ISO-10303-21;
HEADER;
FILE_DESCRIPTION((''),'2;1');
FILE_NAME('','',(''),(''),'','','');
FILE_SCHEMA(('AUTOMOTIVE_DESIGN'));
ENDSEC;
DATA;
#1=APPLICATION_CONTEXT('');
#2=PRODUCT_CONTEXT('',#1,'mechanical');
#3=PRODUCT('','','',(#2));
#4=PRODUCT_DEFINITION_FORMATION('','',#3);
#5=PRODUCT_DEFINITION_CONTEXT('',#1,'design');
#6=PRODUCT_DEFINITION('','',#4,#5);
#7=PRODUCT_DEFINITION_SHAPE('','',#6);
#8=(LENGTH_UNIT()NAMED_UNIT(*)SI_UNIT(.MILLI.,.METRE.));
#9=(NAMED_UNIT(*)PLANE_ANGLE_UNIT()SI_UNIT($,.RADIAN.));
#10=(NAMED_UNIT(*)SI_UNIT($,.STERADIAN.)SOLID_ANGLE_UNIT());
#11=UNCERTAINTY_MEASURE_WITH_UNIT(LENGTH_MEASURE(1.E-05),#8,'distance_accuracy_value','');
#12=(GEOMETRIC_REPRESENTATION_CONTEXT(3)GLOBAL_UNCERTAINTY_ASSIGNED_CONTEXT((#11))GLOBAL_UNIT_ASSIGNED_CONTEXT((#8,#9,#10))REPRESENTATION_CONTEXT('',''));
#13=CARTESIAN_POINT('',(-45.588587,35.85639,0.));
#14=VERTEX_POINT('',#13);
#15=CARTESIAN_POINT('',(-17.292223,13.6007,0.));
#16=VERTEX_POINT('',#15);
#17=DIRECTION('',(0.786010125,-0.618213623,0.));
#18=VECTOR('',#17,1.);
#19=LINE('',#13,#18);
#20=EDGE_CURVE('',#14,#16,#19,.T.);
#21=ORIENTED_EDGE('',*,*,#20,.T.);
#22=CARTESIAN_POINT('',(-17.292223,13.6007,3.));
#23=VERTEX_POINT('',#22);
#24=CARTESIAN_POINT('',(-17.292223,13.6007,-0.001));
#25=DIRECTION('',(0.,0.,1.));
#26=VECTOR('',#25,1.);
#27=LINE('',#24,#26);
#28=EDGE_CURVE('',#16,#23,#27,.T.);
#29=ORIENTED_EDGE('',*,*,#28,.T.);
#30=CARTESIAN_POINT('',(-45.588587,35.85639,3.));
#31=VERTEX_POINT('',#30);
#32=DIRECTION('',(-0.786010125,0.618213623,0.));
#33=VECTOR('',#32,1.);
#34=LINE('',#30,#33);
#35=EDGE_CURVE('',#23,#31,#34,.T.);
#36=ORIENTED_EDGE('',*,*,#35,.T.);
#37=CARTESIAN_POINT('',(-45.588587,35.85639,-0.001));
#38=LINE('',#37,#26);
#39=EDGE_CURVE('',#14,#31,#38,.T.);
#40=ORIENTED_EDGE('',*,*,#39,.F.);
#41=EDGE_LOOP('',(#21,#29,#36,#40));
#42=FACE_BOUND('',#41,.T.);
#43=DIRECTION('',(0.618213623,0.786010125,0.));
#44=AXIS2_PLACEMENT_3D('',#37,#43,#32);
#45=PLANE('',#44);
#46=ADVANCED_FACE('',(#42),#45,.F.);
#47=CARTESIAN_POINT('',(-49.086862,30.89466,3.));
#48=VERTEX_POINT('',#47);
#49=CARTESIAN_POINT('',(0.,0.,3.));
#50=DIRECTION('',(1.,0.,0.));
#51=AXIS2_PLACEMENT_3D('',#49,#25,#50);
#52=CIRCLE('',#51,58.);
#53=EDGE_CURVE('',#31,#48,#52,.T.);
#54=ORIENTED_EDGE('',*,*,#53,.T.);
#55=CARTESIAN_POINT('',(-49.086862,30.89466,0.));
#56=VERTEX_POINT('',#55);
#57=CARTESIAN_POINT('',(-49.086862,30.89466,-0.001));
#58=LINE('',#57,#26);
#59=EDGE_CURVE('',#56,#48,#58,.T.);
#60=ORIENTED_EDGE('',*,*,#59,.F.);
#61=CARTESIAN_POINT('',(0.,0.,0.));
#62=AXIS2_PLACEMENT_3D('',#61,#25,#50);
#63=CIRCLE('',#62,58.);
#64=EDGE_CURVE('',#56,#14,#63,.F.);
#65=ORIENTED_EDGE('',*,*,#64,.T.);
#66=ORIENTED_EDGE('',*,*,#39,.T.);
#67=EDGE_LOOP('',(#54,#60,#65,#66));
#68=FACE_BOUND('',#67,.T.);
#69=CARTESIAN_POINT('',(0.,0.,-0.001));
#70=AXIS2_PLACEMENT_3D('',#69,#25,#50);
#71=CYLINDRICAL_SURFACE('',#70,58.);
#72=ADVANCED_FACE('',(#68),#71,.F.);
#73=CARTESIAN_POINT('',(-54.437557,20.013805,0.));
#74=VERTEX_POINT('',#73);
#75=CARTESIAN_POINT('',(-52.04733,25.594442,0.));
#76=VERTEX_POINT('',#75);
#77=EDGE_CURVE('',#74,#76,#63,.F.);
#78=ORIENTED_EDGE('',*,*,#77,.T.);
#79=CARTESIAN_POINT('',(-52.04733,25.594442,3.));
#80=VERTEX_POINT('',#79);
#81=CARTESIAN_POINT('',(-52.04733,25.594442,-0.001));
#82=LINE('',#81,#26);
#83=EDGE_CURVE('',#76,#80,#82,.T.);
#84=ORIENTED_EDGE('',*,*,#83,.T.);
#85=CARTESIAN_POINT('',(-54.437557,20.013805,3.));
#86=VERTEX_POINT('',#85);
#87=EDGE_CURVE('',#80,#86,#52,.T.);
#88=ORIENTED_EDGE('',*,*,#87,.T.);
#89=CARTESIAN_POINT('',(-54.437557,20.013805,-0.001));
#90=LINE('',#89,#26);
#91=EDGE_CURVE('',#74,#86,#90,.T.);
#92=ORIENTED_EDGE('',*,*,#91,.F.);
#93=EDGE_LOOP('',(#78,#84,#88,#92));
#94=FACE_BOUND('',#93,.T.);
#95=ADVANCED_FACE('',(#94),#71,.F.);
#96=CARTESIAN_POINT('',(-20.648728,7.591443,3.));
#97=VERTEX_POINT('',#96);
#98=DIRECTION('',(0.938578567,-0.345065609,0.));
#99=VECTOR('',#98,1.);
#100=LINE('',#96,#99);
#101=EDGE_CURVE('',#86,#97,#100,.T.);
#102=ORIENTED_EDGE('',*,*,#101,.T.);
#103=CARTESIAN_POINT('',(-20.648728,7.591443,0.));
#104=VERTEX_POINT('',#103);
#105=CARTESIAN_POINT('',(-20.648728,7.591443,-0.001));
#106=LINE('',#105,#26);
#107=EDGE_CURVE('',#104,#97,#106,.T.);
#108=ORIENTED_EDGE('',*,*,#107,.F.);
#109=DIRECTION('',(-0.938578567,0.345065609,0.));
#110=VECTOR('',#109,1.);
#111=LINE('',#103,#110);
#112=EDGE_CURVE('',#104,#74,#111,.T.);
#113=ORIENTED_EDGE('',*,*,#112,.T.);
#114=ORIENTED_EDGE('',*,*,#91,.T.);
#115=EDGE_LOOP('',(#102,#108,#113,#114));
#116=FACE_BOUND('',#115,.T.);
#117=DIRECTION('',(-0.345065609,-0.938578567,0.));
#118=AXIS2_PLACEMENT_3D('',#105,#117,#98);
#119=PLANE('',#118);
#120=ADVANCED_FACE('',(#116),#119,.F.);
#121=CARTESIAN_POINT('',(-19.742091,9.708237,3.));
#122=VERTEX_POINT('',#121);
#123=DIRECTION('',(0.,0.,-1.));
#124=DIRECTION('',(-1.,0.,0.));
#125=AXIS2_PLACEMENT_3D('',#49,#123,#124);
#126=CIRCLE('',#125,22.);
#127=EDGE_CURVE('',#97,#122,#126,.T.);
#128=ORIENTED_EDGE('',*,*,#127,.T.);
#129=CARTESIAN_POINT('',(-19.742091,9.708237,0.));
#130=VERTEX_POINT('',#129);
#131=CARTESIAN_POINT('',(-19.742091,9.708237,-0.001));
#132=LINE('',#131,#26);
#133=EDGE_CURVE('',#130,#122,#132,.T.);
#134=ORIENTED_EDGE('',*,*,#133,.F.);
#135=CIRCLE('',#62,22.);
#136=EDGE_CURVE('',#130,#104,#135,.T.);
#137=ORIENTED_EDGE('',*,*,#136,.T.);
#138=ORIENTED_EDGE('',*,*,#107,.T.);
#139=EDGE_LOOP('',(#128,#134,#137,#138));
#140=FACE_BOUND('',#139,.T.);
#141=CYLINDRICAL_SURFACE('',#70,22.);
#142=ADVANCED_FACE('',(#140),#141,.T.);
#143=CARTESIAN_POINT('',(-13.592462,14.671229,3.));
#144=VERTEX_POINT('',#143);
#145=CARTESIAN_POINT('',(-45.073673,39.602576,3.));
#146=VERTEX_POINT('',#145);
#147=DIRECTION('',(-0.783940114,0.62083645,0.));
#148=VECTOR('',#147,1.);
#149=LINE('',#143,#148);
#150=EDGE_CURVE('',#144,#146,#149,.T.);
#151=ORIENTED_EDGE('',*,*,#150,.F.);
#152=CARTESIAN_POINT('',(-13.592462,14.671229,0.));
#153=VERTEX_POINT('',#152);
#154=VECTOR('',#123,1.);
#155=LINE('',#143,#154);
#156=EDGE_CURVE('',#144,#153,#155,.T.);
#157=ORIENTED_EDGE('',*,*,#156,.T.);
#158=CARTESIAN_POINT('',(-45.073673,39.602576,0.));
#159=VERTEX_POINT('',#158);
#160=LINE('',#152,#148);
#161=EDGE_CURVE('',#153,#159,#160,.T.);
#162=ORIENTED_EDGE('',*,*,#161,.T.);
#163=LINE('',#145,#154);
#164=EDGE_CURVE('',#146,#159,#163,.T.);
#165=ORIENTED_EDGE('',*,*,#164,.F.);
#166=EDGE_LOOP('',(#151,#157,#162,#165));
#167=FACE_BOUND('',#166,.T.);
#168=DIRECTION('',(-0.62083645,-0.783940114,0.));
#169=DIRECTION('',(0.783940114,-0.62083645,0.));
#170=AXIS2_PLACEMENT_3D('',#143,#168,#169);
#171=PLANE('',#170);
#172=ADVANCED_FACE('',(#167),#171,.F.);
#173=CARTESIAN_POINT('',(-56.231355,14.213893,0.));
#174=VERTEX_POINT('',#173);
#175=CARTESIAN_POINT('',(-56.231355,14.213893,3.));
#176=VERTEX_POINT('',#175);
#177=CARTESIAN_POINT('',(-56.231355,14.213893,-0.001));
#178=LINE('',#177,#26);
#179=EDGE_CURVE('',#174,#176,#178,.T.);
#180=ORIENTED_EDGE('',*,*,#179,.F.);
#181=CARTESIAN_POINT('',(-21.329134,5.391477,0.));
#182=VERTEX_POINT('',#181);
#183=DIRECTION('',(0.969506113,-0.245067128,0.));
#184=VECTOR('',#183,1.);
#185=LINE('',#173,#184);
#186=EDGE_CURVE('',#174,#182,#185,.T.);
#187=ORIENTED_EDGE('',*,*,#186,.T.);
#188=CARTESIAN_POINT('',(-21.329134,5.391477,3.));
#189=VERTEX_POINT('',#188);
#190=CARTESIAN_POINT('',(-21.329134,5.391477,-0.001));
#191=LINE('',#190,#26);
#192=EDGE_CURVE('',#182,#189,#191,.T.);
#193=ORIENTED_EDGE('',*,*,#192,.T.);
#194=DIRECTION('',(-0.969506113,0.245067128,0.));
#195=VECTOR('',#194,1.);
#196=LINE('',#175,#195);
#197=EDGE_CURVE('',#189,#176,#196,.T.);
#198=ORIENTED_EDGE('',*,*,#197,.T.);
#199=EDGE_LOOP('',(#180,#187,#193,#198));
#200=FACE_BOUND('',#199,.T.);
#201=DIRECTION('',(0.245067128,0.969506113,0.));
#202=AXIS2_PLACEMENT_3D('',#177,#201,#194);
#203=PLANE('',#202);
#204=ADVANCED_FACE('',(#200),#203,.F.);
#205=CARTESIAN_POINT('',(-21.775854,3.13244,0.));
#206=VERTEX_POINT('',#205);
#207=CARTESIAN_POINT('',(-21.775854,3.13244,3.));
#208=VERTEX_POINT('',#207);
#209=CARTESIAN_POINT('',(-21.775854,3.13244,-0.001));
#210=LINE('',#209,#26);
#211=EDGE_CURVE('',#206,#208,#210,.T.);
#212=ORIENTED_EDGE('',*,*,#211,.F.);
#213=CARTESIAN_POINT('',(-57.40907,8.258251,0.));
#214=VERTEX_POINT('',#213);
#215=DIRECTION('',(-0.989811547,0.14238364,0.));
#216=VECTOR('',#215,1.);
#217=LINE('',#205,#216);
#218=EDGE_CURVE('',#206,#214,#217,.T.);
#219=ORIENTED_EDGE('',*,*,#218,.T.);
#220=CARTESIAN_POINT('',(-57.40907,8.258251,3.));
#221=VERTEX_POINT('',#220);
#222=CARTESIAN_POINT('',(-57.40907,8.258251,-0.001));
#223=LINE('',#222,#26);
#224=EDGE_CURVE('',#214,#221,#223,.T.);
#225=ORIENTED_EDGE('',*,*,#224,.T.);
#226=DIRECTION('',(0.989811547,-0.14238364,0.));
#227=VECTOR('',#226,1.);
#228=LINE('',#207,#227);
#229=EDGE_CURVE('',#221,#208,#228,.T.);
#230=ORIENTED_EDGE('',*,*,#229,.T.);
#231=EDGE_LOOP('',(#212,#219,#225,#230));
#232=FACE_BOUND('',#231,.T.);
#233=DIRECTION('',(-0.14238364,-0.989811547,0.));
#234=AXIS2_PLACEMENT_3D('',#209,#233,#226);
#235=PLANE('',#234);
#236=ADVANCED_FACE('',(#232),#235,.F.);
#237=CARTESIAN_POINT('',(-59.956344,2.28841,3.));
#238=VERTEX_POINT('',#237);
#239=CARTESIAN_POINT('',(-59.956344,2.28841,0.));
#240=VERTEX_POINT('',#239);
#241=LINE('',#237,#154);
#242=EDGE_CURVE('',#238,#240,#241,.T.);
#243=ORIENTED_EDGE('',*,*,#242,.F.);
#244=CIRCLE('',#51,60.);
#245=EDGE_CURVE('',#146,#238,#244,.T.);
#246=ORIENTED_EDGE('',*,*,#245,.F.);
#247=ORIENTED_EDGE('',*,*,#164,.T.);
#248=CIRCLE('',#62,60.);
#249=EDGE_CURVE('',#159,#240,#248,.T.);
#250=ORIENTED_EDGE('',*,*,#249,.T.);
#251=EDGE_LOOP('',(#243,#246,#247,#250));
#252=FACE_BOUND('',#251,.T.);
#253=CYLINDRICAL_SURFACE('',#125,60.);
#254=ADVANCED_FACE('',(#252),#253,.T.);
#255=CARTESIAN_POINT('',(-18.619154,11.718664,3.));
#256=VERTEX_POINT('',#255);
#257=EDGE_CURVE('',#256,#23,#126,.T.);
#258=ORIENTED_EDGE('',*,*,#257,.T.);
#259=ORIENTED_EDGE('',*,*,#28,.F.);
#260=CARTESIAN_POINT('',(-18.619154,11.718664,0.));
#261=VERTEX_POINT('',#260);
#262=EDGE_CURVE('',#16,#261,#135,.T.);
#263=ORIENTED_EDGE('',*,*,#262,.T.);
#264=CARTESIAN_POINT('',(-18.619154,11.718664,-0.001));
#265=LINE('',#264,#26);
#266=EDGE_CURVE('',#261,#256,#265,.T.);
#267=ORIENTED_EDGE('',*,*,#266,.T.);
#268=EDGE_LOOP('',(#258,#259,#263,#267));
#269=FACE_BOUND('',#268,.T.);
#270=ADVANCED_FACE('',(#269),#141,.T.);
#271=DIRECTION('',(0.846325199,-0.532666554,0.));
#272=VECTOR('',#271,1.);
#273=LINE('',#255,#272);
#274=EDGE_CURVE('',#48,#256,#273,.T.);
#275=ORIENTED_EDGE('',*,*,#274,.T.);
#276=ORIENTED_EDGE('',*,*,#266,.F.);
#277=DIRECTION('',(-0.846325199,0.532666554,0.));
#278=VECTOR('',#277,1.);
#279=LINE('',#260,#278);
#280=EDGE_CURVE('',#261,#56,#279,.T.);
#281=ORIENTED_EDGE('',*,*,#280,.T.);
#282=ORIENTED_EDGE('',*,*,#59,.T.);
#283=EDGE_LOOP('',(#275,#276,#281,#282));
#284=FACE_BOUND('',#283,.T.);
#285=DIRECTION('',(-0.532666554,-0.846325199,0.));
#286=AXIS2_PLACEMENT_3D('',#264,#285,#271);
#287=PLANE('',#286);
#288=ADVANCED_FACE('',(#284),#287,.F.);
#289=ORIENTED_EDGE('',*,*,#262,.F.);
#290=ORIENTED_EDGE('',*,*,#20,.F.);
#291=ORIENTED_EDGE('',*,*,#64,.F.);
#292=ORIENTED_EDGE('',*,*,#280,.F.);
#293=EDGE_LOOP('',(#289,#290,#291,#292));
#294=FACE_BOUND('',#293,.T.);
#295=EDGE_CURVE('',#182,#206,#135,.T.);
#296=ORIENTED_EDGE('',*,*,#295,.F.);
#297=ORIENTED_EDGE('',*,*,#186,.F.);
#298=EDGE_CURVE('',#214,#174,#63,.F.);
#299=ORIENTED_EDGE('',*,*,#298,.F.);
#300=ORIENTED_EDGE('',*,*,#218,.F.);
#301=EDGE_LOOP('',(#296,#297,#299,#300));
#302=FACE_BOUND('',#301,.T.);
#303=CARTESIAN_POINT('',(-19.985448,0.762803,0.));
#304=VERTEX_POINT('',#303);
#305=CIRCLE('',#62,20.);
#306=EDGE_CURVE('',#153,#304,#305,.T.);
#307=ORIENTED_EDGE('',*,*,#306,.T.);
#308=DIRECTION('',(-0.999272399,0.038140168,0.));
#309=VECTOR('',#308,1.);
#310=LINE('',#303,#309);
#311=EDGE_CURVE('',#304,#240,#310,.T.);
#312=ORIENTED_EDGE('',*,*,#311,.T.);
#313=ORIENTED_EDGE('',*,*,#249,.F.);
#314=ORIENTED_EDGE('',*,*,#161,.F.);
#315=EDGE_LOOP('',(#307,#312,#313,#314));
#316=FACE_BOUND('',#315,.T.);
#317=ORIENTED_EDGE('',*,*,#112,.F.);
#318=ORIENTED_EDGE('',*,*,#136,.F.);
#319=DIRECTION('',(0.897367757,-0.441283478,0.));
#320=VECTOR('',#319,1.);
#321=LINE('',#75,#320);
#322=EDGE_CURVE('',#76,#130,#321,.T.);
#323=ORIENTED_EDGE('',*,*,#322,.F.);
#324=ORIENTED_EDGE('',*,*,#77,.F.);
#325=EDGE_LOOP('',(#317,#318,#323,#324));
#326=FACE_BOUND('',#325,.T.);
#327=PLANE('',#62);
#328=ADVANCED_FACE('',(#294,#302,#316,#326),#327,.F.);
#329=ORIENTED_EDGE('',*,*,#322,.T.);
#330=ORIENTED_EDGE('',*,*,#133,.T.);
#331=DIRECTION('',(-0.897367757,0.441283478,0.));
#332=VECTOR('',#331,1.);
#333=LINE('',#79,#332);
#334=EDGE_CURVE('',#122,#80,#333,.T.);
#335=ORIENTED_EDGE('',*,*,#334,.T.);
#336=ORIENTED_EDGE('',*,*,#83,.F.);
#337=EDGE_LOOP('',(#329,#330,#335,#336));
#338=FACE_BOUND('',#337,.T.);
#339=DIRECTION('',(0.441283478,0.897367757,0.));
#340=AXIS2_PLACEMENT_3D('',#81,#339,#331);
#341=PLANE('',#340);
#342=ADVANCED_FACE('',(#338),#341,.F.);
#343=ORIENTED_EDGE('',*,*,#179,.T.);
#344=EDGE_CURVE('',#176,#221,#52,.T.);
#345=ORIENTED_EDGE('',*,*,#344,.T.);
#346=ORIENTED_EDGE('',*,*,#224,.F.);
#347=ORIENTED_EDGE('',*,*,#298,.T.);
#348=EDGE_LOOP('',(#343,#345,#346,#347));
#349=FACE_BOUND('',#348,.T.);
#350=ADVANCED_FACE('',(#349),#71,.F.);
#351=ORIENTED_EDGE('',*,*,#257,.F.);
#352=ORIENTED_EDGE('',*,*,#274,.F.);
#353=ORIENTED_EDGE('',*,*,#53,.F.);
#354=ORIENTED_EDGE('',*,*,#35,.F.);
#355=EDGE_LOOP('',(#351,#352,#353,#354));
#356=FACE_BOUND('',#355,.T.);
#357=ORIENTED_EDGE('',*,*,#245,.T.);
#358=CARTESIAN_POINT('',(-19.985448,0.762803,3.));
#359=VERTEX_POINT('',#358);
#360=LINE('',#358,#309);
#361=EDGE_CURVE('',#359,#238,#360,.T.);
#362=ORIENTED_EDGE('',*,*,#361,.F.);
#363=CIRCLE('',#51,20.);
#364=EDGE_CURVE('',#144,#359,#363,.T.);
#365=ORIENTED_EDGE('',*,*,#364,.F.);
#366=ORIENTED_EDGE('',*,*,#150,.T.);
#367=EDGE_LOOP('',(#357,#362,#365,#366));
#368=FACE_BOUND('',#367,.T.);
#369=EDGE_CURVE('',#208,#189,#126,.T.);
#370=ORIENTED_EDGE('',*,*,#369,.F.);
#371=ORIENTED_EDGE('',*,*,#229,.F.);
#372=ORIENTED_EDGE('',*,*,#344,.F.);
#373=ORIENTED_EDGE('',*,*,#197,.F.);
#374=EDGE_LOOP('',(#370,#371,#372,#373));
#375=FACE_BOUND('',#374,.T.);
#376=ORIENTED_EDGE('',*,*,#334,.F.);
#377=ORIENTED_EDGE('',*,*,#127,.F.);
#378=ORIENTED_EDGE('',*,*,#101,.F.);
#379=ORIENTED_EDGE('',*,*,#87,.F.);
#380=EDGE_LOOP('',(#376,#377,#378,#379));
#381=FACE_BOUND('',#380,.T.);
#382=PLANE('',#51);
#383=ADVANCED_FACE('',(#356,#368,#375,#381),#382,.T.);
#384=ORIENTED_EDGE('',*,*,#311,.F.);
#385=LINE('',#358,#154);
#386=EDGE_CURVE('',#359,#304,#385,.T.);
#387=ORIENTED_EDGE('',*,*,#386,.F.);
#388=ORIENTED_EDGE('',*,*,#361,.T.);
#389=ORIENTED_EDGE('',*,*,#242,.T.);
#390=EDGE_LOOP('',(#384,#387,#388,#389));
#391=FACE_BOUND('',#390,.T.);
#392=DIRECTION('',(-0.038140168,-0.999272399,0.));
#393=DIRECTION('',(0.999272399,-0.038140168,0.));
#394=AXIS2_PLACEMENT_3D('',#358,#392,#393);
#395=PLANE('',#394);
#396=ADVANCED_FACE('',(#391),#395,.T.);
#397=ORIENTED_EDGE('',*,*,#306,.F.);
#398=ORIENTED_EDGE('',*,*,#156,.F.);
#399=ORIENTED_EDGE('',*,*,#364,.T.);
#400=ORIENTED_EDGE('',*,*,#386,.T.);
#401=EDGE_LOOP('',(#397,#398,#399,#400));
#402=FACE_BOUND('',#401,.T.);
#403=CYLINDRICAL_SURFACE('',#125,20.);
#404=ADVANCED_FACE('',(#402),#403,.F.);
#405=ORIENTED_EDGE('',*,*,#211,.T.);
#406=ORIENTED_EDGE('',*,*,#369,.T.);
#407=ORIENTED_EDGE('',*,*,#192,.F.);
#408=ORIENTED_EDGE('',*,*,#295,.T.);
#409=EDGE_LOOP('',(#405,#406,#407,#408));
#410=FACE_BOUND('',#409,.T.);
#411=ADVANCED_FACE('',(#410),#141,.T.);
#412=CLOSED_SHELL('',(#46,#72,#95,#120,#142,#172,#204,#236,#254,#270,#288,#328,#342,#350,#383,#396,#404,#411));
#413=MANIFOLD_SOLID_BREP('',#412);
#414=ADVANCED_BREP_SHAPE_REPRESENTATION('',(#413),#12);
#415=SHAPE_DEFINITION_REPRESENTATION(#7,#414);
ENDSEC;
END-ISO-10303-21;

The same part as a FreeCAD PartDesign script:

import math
import FreeCAD as App
import Part
import Sketcher

V = App.Vector
Q = App.Units.Quantity

doc = App.newDocument("Part")
body = doc.addObject("PartDesign::Body", "Body")

# Sketch on XY plane
sketch1 = body.newObject("Sketcher::SketchObject", "Sketch")
sketch1.AttachmentSupport = (doc.getObject("XY_Plane"), [""])
sketch1.MapMode = "FlatFace"
sketch1.addGeometry([
    Part.LineSegment(V(-60, 2, 0), V(-20, 1, 0)),
    Part.ArcOfCircle(Part.Circle(V(0, 0, 0), V(0, 0, 1), 20), math.radians(133), math.radians(178)),
    Part.LineSegment(V(-14, 15, 0), V(-45, 40, 0)),
    Part.ArcOfCircle(Part.Circle(V(0, 0, 0), V(0, 0, 1), 60), math.radians(139), math.radians(178)),
], False)
sketch1.addConstraint([
    Sketcher.Constraint("Coincident", 0, 2, 1, 2),
    Sketcher.Constraint("Coincident", 1, 1, 2, 1),
    Sketcher.Constraint("Coincident", 2, 2, 3, 1),
    Sketcher.Constraint("Coincident", 3, 2, 0, 1),
    Sketcher.Constraint("Coincident", 1, 3, -1, 1),
    Sketcher.Constraint("Coincident", 3, 3, -1, 1),
    Sketcher.Constraint("Radius", 1, Q("20 mm")),
    Sketcher.Constraint("Radius", 3, Q("60 mm")),
    Sketcher.Constraint("DistanceY", -1, 1, 1, 1, Q("14.671229 mm")),
    Sketcher.Constraint("DistanceY", -1, 1, 3, 2, Q("2.28841 mm")),
    Sketcher.Constraint("DistanceX", 2, 2, 1, 1, Q("31.48121 mm")),
    Sketcher.Constraint("DistanceX", 0, 2, -1, 1, Q("19.985448 mm")),
])
pad1 = body.newObject("PartDesign::Pad", "Pad")
pad1.Profile = sketch1
pad1.Length = 3

# Sketch on XY plane
sketch2 = body.newObject("Sketcher::SketchObject", "Sketch001")
sketch2.AttachmentSupport = (doc.getObject("XY_Plane"), [""])
sketch2.MapMode = "FlatFace"
sketch2.AttachmentOffset = App.Placement(V(0, 0, 3), App.Rotation())
sketch2.addGeometry([
    Part.LineSegment(V(-17.3, 13.6, 0), V(-45.6, 35.9, 0)),
    Part.ArcOfCircle(Part.Circle(V(0, 0, 0), V(0, 0, 1), 58), math.radians(141.81), math.radians(147.81)),
    Part.LineSegment(V(-49.1, 30.9, 0), V(-18.6, 11.7, 0)),
    Part.ArcOfCircle(Part.Circle(V(0, 0, 0), V(0, 0, 1), 22), math.radians(141.81), math.radians(147.81)),
], False)
sketch2.addConstraint([
    Sketcher.Constraint("Coincident", 0, 2, 1, 1),
    Sketcher.Constraint("Coincident", 1, 2, 2, 1),
    Sketcher.Constraint("Coincident", 2, 2, 3, 2),
    Sketcher.Constraint("Coincident", 3, 1, 0, 1),
    Sketcher.Constraint("Coincident", 1, 3, -1, 1),
    Sketcher.Constraint("Coincident", 3, 3, -1, 1),
    Sketcher.Constraint("Radius", 1, Q("58 mm")),
    Sketcher.Constraint("Radius", 3, Q("22 mm")),
    Sketcher.Constraint("DistanceY", -1, 1, 3, 1, Q("13.6007 mm")),
    Sketcher.Constraint("DistanceY", -1, 1, 0, 2, Q("35.85639 mm")),
    Sketcher.Constraint("DistanceX", 1, 2, -1, 1, Q("49.086862 mm")),
    Sketcher.Constraint("DistanceX", 2, 2, 3, 1, Q("1.326932 mm")),
])
pocket1 = body.newObject("PartDesign::Pocket", "Pocket")
pocket1.Profile = sketch2
pocket1.Type = "UpToFirst"

# Sketch on XY plane
sketch3 = body.newObject("Sketcher::SketchObject", "Sketch002")
sketch3.AttachmentSupport = (doc.getObject("XY_Plane"), [""])
sketch3.MapMode = "FlatFace"
sketch3.AttachmentOffset = App.Placement(V(0, 0, 3), App.Rotation())
sketch3.addGeometry([
    Part.LineSegment(V(-19.7, 9.7, 0), V(-52, 25.6, 0)),
    Part.ArcOfCircle(Part.Circle(V(0, 0, 0), V(0, 0, 1), 58), math.radians(153.81), math.radians(159.81)),
    Part.LineSegment(V(-54.4, 20, 0), V(-20.6, 7.6, 0)),
    Part.ArcOfCircle(Part.Circle(V(0, 0, 0), V(0, 0, 1), 22), math.radians(153.81), math.radians(159.81)),
], False)
sketch3.addConstraint([
    Sketcher.Constraint("Coincident", 0, 2, 1, 1),
    Sketcher.Constraint("Coincident", 1, 2, 2, 1),
    Sketcher.Constraint("Coincident", 2, 2, 3, 2),
    Sketcher.Constraint("Coincident", 3, 1, 0, 1),
    Sketcher.Constraint("Coincident", 1, 3, -1, 1),
    Sketcher.Constraint("Coincident", 3, 3, -1, 1),
    Sketcher.Constraint("Radius", 1, Q("58 mm")),
    Sketcher.Constraint("Radius", 3, Q("22 mm")),
    Sketcher.Constraint("DistanceY", 2, 2, 0, 2, Q("18.002998 mm")),
    Sketcher.Constraint("DistanceX", 0, 2, 2, 2, Q("31.398601 mm")),
    Sketcher.Constraint("DistanceX", 3, 1, -1, 1, Q("19.742091 mm")),
    Sketcher.Constraint("DistanceX", 1, 2, 2, 2, Q("33.788828 mm")),
])
pocket2 = body.newObject("PartDesign::Pocket", "Pocket001")
pocket2.Profile = sketch3
pocket2.Type = "UpToFirst"

# Sketch on XY plane
sketch4 = body.newObject("Sketcher::SketchObject", "Sketch003")
sketch4.AttachmentSupport = (doc.getObject("XY_Plane"), [""])
sketch4.MapMode = "FlatFace"
sketch4.AttachmentOffset = App.Placement(V(0, 0, 3), App.Rotation())
sketch4.addGeometry([
    Part.LineSegment(V(-21.3, 5.4, 0), V(-56.2, 14.2, 0)),
    Part.ArcOfCircle(Part.Circle(V(0, 0, 0), V(0, 0, 1), 58), math.radians(165.81), math.radians(171.81)),
    Part.LineSegment(V(-57.4, 8.3, 0), V(-21.8, 3.1, 0)),
    Part.ArcOfCircle(Part.Circle(V(0, 0, 0), V(0, 0, 1), 22), math.radians(165.81), math.radians(171.81)),
], False)
sketch4.addConstraint([
    Sketcher.Constraint("Coincident", 0, 2, 1, 1),
    Sketcher.Constraint("Coincident", 1, 2, 2, 1),
    Sketcher.Constraint("Coincident", 2, 2, 3, 2),
    Sketcher.Constraint("Coincident", 3, 1, 0, 1),
    Sketcher.Constraint("Coincident", 1, 3, -1, 1),
    Sketcher.Constraint("Coincident", 3, 3, -1, 1),
    Sketcher.Constraint("Radius", 1, Q("58 mm")),
    Sketcher.Constraint("Radius", 3, Q("22 mm")),
    Sketcher.Constraint("DistanceX", 0, 2, 2, 2, Q("34.455501 mm")),
    Sketcher.Constraint("DistanceX", 1, 2, -1, 1, Q("57.40907 mm")),
    Sketcher.Constraint("DistanceY", -1, 1, 2, 2, Q("3.13244 mm")),
    Sketcher.Constraint("DistanceX", 2, 2, 3, 1, Q("0.44672 mm")),
])
pocket3 = body.newObject("PartDesign::Pocket", "Pocket002")
pocket3.Profile = sketch4
pocket3.Type = "UpToFirst"

doc.recompute()
